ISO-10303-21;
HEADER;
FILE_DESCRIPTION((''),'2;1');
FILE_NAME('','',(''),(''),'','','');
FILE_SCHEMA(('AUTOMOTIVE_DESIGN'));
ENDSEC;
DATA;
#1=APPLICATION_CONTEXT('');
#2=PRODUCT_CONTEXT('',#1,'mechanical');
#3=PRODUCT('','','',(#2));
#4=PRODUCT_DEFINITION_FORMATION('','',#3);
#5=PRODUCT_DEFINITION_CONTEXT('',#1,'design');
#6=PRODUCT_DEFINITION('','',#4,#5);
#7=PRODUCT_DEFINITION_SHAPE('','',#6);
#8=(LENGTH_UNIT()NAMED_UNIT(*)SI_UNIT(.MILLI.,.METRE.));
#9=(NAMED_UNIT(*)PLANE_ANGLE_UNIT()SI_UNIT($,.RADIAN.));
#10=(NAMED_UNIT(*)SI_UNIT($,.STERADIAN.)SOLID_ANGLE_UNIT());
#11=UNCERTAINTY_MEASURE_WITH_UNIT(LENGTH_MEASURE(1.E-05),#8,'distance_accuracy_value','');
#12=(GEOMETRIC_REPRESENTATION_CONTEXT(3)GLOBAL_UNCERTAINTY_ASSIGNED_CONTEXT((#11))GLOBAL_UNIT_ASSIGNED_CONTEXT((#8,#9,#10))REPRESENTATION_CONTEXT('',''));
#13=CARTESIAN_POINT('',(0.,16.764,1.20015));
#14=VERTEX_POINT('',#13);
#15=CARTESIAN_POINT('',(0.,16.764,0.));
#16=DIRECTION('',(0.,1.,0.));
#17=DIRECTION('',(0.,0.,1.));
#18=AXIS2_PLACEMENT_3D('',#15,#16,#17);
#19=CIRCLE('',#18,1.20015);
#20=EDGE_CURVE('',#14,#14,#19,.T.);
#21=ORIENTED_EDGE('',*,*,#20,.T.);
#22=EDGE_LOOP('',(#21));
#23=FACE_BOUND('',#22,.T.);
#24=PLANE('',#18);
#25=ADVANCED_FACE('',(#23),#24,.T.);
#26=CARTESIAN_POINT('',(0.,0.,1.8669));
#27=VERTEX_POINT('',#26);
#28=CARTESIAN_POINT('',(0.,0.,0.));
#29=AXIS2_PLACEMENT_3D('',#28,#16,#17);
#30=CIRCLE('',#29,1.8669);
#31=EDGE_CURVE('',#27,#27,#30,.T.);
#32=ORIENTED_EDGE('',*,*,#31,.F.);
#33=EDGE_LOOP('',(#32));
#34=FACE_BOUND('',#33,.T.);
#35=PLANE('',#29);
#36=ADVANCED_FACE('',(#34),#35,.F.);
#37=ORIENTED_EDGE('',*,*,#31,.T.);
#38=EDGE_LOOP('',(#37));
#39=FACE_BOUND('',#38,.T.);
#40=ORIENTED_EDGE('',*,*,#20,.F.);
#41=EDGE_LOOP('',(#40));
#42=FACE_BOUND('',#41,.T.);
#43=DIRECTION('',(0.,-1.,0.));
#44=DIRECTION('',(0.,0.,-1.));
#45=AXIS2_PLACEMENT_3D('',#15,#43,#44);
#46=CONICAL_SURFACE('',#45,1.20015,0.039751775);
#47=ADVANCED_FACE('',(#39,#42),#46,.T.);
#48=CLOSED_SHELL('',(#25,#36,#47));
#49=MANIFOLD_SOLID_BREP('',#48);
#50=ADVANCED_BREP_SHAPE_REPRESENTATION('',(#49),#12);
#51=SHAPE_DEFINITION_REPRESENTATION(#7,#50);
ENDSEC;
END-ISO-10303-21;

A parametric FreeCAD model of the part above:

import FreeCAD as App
import Part
import Sketcher
from FreeCAD import Vector
Q = App.Units.Quantity

doc = App.newDocument("Part")
body = doc.addObject("PartDesign::Body", "Body")

# Sketch on XZ plane
sketch1 = doc.addObject("Sketcher::SketchObject", "Sketch")
body.addObject(sketch1)
sketch1.AttachmentSupport = (doc.XZ_Plane, [""])
sketch1.MapMode = "FlatFace"
sketch1.AttachmentOffset = App.Placement(Vector(0, 0, -0.66 * 25.4), App.Rotation())
sketch1.addGeometry(Part.Circle(Vector(0, 0, 0), Vector(0, 0, 1), 1.20015), False)
sketch1.addConstraint([
    Sketcher.Constraint("Coincident", 0, 3, -1, 1),
    Sketcher.Constraint("Diameter", 0, Q("0.0945 in")),
])

# Sketch on XZ plane
sketch2 = doc.addObject("Sketcher::SketchObject", "Sketch001")
body.addObject(sketch2)
sketch2.AttachmentSupport = (doc.XZ_Plane, [""])
sketch2.MapMode = "FlatFace"
sketch2.addGeometry(Part.Circle(Vector(0, 0, 0), Vector(0, 0, 1), 1.8669), False)
sketch2.addConstraint([
    Sketcher.Constraint("Coincident", 0, 3, -1, 1),
    Sketcher.Constraint("Diameter", 0, Q("0.147 in")),
])

additiveloft = doc.addObject("PartDesign::AdditiveLoft", "AdditiveLoft")
body.addObject(additiveloft)
additiveloft.Profile = sketch1
additiveloft.Sections = [sketch2]

doc.recompute()
